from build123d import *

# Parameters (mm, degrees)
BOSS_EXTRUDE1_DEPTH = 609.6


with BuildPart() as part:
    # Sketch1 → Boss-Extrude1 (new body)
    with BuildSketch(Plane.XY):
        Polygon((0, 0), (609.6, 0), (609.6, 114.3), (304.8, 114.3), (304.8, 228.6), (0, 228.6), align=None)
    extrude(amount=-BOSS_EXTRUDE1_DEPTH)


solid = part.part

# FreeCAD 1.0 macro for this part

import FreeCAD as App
import Part
import Sketcher

V = App.Vector
Q = App.Units.Quantity


def add_polygon(sketch, points):
    """Adds a closed chain of lines whose ends are joined by coincident constraints."""
    first, n = sketch.GeometryCount, len(points)
    for a, b in zip(points, points[1:] + points[:1]):
        sketch.addGeometry(Part.LineSegment(App.Vector(*a, 0), App.Vector(*b, 0)), False)
    for i in range(n):
        sketch.addConstraint(Sketcher.Constraint("Coincident", first + i, 2, first + (i + 1) % n, 1))

doc = App.newDocument("Part")
body = doc.addObject("PartDesign::Body", "Body")

sketch1 = body.newObject("Sketcher::SketchObject", "Sketch")
sketch1.AttachmentSupport = (doc.getObject("XY_Plane"), [""])
sketch1.MapMode = "FlatFace"
add_polygon(sketch1, [(0, 0), (609.6, 0), (609.6, 114.3), (304.8, 114.3), (304.8, 228.6), (0, 228.6)])
sketch1.addConstraint([
    Sketcher.Constraint("Horizontal", 0),
    Sketcher.Constraint("Vertical", 1),
    Sketcher.Constraint("Horizontal", 2),
    Sketcher.Constraint("Vertical", 3),
    Sketcher.Constraint("Horizontal", 4),
    Sketcher.Constraint("Vertical", 5),
    Sketcher.Constraint("Coincident", 5, 2, -1, 1),
    Sketcher.Constraint("Equal", 2, 4),
    Sketcher.Constraint("Equal", 1, 3),
    Sketcher.Constraint("DistanceX", 0, 1, 0, 2, Q("24 in")),
    Sketcher.Constraint("DistanceY", 5, 2, 5, 1, Q("9 in")),
])
pad1 = body.newObject("PartDesign::Pad", "Pad")
pad1.Profile = sketch1
pad1.Length = Q("24 in")
pad1.Reversed = True

doc.recompute()
